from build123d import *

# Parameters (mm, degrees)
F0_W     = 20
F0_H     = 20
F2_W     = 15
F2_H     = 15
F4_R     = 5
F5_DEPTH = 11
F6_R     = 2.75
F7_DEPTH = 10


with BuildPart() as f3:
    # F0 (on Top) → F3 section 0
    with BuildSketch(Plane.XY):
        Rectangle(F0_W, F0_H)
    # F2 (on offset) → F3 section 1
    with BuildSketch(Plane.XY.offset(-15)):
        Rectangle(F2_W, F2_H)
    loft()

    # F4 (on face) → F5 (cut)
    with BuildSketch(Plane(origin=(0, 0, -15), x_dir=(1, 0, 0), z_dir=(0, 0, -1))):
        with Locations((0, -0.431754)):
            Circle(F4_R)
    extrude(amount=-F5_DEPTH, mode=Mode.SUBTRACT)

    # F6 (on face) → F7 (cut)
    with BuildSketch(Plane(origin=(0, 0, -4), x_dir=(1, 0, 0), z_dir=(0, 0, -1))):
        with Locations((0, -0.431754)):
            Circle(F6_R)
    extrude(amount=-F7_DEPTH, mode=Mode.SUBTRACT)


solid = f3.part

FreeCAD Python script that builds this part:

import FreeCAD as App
import Part
import Sketcher
Q = App.Units.Quantity


def add_polygon(sketch, points):
    """Adds a closed chain of lines whose ends are joined by coincident constraints."""
    first, n = sketch.GeometryCount, len(points)
    for a, b in zip(points, points[1:] + points[:1]):
        sketch.addGeometry(Part.LineSegment(App.Vector(*a, 0), App.Vector(*b, 0)), False)
    for i in range(n):
        sketch.addConstraint(Sketcher.Constraint("Coincident", first + i, 2, first + (i + 1) % n, 1))

doc = App.newDocument("Part")
body = doc.addObject("PartDesign::Body", "Body")

sketch1 = doc.addObject("Sketcher::SketchObject", "Sketch")
body.addObject(sketch1)
sketch1.AttachmentSupport = (doc.XY_Plane, [""])
sketch1.MapMode = "FlatFace"
add_polygon(sketch1, [(-10, 10), (-10, -10), (10, -10), (10, 10)])
sketch1.addConstraint([
    Sketcher.Constraint("Vertical", 0),
    Sketcher.Constraint("Horizontal", 1),
    Sketcher.Constraint("Vertical", 2),
    Sketcher.Constraint("Horizontal", 3),
    Sketcher.Constraint("Symmetric", 0, 2, 2, 2, -1, 1),
    Sketcher.Constraint("Equal", 3, 0),
    Sketcher.Constraint("DistanceX", 1, 1, 1, 2, Q("20 mm")),
])

sketch2 = doc.addObject("Sketcher::SketchObject", "Sketch001")
body.addObject(sketch2)
sketch2.AttachmentSupport = (doc.XY_Plane, [""])
sketch2.MapMode = "FlatFace"
sketch2.AttachmentOffset = App.Placement(App.Vector(0, 0, -15), App.Rotation())
add_polygon(sketch2, [(-8, 8), (-8, -8), (8, -8), (8, 8)])
sketch2.addConstraint([
    Sketcher.Constraint("Vertical", 0),
    Sketcher.Constraint("Horizontal", 1),
    Sketcher.Constraint("Vertical", 2),
    Sketcher.Constraint("Horizontal", 3),
    Sketcher.Constraint("Symmetric", 0, 2, 2, 2, -1, 1),
    Sketcher.Constraint("Equal", 3, 0),
    Sketcher.Constraint("DistanceX", 1, 1, 1, 2, Q("15 mm")),
])

additiveloft = doc.addObject("PartDesign::AdditiveLoft", "AdditiveLoft")
body.addObject(additiveloft)
additiveloft.Profile = sketch1
additiveloft.Sections = [sketch2]

sketch3 = doc.addObject("Sketcher::SketchObject", "Sketch002")
body.addObject(sketch3)
sketch3.AttachmentSupport = (doc.XY_Plane, [""])
sketch3.MapMode = "FlatFace"
sketch3.AttachmentOffset = App.Placement(App.Vector(0, 0, -15), App.Rotation())
sketch3.addGeometry(Part.Circle(App.Vector(0, 0, 0), App.Vector(0, 0, 1), 5), False)
sketch3.addConstraint([
    Sketcher.Constraint("PointOnObject", 0, 3, -2),
    Sketcher.Constraint("Diameter", 0, Q("10 mm")),
    Sketcher.Constraint("DistanceY", -1, 1, 0, 3, Q("0.431754 mm")),
])
pocket1 = doc.addObject("PartDesign::Pocket", "Pocket")
body.addObject(pocket1)
pocket1.Profile = sketch3
pocket1.Length = 11
pocket1.Reversed = True

sketch4 = doc.addObject("Sketcher::SketchObject", "Sketch003")
body.addObject(sketch4)
sketch4.AttachmentSupport = (doc.XY_Plane, [""])
sketch4.MapMode = "FlatFace"
sketch4.AttachmentOffset = App.Placement(App.Vector(0, 0, -4), App.Rotation())
sketch4.addGeometry(Part.Circle(App.Vector(0, 0.4, 0), App.Vector(0, 0, 1), 2.8), False)
sketch4.addConstraint([
    Sketcher.Constraint("PointOnObject", 0, 3, -2),
    Sketcher.Constraint("Diameter", 0, Q("5.5 mm")),
    Sketcher.Constraint("DistanceY", -1, 1, 0, 3, Q("0.431754 mm")),
])
pocket2 = doc.addObject("PartDesign::Pocket", "Pocket001")
body.addObject(pocket2)
pocket2.Profile = sketch4
pocket2.Length = 10
pocket2.Reversed = True

doc.recompute()
